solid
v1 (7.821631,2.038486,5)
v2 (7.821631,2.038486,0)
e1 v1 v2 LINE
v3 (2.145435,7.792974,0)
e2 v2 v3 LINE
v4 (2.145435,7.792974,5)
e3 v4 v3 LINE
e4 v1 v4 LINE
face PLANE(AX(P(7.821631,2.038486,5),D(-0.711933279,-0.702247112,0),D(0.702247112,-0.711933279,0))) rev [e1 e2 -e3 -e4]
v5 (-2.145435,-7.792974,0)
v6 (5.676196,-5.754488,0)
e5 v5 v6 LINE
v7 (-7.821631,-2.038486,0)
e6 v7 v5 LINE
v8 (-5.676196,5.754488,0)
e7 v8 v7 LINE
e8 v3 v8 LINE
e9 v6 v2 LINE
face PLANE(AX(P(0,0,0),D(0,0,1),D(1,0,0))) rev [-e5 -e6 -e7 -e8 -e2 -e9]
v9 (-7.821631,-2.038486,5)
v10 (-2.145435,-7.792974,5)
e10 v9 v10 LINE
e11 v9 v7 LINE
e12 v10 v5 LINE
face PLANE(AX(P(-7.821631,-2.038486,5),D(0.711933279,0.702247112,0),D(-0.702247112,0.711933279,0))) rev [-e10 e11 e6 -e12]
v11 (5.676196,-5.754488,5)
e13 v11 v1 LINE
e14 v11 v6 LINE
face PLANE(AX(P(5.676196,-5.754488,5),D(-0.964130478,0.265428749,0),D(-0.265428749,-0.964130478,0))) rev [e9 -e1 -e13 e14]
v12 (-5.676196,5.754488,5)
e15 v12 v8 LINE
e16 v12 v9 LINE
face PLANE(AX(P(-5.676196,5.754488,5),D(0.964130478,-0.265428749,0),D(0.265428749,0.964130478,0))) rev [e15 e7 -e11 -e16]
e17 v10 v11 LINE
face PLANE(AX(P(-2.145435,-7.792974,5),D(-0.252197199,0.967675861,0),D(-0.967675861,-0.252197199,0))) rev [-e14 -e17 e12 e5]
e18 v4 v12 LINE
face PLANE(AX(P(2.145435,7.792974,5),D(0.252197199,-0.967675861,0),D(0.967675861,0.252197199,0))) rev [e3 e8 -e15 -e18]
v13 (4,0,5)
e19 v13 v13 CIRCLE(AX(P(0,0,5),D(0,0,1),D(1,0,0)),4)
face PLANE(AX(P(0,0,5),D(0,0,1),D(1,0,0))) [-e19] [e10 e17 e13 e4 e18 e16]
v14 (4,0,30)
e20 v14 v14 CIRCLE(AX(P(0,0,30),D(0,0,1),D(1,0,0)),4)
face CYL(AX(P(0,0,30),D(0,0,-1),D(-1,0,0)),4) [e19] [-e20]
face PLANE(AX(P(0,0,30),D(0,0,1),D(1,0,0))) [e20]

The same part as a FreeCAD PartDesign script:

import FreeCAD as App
import Part
import Sketcher

V = App.Vector


def add_polygon(sketch, points):
    """Adds a closed chain of lines whose ends are joined by coincident constraints."""
    first, n = sketch.GeometryCount, len(points)
    for a, b in zip(points, points[1:] + points[:1]):
        sketch.addGeometry(Part.LineSegment(App.Vector(*a, 0), App.Vector(*b, 0)), False)
    for i in range(n):
        sketch.addConstraint(Sketcher.Constraint("Coincident", first + i, 2, first + (i + 1) % n, 1))

doc = App.newDocument("Part")
body = doc.addObject("PartDesign::Body", "Body")

# Sketch on XY plane
sketch1 = body.newObject("Sketcher::SketchObject", "Sketch")
sketch1.AttachmentSupport = (doc.getObject("XY_Plane"), [""])
sketch1.MapMode = "FlatFace"
add_polygon(sketch1, [(6, -6), (8, 2), (2, 8), (-6, 6), (-8, -2), (-2, -8)])  # lines 0-5
sketch1.addConstraint([
    Sketcher.Constraint("Symmetric", 0, 2, 3, 2, -1, 1),
    Sketcher.Constraint("Symmetric", 1, 2, 4, 2, -1, 1),
    Sketcher.Constraint("Symmetric", 2, 2, 5, 2, -1, 1),
    Sketcher.Constraint("Equal", 0, 1),
    Sketcher.Constraint("Equal", 1, 2),
    Sketcher.Constraint("DistanceX", -1, 1, 0, 2, 7.821631),
    Sketcher.Constraint("DistanceY", -1, 1, 2, 2, 5.754488),
    Sketcher.Constraint("DistanceY", 0, 2, 1, 2, 5.754488),
    Sketcher.Constraint("DistanceX", 2, 2, 1, 2, 7.821631),
])
pad1 = body.newObject("PartDesign::Pad", "Pad")
pad1.Profile = sketch1
pad1.Length = 5

# Sketch on XY plane
sketch2 = body.newObject("Sketcher::SketchObject", "Sketch001")
sketch2.AttachmentSupport = (doc.getObject("XY_Plane"), [""])
sketch2.MapMode = "FlatFace"
sketch2.AttachmentOffset = App.Placement(V(0, 0, 5), App.Rotation())
sketch2.addGeometry(Part.Circle(V(0, 0, 0), V(0, 0, 1), 4), False)
sketch2.addConstraint([
    Sketcher.Constraint("Coincident", 0, 3, -1, 1),
    Sketcher.Constraint("Diameter", 0, 8.0),
])
pad2 = body.newObject("PartDesign::Pad", "Pad001")
pad2.Profile = sketch2
pad2.Length = 25

doc.recompute()
